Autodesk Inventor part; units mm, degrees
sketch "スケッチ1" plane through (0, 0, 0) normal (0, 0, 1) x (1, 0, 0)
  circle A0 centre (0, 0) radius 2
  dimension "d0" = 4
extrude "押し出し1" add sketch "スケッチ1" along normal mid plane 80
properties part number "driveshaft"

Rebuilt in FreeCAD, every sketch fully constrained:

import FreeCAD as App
import Part
import Sketcher

V = App.Vector
Q = App.Units.Quantity

doc = App.newDocument("Part")
body = doc.addObject("PartDesign::Body", "Body")

# Sketch on XY plane
sketch1 = body.newObject("Sketcher::SketchObject", "Sketch")
sketch1.AttachmentSupport = (doc.getObject("XY_Plane"), [""])
sketch1.MapMode = "FlatFace"
sketch1.addGeometry(Part.Circle(V(0, 0, 0), V(0, 0, 1), 2), False)
sketch1.addConstraint(Sketcher.Constraint("Coincident", 0, 3, -1, 1))
sketch1.addConstraint(Sketcher.Constraint("Diameter", 0, Q("4 mm")))
pad1 = body.newObject("PartDesign::Pad", "Pad")
pad1.Profile = sketch1
pad1.Length = 80
pad1.Midplane = True

doc.recompute()
